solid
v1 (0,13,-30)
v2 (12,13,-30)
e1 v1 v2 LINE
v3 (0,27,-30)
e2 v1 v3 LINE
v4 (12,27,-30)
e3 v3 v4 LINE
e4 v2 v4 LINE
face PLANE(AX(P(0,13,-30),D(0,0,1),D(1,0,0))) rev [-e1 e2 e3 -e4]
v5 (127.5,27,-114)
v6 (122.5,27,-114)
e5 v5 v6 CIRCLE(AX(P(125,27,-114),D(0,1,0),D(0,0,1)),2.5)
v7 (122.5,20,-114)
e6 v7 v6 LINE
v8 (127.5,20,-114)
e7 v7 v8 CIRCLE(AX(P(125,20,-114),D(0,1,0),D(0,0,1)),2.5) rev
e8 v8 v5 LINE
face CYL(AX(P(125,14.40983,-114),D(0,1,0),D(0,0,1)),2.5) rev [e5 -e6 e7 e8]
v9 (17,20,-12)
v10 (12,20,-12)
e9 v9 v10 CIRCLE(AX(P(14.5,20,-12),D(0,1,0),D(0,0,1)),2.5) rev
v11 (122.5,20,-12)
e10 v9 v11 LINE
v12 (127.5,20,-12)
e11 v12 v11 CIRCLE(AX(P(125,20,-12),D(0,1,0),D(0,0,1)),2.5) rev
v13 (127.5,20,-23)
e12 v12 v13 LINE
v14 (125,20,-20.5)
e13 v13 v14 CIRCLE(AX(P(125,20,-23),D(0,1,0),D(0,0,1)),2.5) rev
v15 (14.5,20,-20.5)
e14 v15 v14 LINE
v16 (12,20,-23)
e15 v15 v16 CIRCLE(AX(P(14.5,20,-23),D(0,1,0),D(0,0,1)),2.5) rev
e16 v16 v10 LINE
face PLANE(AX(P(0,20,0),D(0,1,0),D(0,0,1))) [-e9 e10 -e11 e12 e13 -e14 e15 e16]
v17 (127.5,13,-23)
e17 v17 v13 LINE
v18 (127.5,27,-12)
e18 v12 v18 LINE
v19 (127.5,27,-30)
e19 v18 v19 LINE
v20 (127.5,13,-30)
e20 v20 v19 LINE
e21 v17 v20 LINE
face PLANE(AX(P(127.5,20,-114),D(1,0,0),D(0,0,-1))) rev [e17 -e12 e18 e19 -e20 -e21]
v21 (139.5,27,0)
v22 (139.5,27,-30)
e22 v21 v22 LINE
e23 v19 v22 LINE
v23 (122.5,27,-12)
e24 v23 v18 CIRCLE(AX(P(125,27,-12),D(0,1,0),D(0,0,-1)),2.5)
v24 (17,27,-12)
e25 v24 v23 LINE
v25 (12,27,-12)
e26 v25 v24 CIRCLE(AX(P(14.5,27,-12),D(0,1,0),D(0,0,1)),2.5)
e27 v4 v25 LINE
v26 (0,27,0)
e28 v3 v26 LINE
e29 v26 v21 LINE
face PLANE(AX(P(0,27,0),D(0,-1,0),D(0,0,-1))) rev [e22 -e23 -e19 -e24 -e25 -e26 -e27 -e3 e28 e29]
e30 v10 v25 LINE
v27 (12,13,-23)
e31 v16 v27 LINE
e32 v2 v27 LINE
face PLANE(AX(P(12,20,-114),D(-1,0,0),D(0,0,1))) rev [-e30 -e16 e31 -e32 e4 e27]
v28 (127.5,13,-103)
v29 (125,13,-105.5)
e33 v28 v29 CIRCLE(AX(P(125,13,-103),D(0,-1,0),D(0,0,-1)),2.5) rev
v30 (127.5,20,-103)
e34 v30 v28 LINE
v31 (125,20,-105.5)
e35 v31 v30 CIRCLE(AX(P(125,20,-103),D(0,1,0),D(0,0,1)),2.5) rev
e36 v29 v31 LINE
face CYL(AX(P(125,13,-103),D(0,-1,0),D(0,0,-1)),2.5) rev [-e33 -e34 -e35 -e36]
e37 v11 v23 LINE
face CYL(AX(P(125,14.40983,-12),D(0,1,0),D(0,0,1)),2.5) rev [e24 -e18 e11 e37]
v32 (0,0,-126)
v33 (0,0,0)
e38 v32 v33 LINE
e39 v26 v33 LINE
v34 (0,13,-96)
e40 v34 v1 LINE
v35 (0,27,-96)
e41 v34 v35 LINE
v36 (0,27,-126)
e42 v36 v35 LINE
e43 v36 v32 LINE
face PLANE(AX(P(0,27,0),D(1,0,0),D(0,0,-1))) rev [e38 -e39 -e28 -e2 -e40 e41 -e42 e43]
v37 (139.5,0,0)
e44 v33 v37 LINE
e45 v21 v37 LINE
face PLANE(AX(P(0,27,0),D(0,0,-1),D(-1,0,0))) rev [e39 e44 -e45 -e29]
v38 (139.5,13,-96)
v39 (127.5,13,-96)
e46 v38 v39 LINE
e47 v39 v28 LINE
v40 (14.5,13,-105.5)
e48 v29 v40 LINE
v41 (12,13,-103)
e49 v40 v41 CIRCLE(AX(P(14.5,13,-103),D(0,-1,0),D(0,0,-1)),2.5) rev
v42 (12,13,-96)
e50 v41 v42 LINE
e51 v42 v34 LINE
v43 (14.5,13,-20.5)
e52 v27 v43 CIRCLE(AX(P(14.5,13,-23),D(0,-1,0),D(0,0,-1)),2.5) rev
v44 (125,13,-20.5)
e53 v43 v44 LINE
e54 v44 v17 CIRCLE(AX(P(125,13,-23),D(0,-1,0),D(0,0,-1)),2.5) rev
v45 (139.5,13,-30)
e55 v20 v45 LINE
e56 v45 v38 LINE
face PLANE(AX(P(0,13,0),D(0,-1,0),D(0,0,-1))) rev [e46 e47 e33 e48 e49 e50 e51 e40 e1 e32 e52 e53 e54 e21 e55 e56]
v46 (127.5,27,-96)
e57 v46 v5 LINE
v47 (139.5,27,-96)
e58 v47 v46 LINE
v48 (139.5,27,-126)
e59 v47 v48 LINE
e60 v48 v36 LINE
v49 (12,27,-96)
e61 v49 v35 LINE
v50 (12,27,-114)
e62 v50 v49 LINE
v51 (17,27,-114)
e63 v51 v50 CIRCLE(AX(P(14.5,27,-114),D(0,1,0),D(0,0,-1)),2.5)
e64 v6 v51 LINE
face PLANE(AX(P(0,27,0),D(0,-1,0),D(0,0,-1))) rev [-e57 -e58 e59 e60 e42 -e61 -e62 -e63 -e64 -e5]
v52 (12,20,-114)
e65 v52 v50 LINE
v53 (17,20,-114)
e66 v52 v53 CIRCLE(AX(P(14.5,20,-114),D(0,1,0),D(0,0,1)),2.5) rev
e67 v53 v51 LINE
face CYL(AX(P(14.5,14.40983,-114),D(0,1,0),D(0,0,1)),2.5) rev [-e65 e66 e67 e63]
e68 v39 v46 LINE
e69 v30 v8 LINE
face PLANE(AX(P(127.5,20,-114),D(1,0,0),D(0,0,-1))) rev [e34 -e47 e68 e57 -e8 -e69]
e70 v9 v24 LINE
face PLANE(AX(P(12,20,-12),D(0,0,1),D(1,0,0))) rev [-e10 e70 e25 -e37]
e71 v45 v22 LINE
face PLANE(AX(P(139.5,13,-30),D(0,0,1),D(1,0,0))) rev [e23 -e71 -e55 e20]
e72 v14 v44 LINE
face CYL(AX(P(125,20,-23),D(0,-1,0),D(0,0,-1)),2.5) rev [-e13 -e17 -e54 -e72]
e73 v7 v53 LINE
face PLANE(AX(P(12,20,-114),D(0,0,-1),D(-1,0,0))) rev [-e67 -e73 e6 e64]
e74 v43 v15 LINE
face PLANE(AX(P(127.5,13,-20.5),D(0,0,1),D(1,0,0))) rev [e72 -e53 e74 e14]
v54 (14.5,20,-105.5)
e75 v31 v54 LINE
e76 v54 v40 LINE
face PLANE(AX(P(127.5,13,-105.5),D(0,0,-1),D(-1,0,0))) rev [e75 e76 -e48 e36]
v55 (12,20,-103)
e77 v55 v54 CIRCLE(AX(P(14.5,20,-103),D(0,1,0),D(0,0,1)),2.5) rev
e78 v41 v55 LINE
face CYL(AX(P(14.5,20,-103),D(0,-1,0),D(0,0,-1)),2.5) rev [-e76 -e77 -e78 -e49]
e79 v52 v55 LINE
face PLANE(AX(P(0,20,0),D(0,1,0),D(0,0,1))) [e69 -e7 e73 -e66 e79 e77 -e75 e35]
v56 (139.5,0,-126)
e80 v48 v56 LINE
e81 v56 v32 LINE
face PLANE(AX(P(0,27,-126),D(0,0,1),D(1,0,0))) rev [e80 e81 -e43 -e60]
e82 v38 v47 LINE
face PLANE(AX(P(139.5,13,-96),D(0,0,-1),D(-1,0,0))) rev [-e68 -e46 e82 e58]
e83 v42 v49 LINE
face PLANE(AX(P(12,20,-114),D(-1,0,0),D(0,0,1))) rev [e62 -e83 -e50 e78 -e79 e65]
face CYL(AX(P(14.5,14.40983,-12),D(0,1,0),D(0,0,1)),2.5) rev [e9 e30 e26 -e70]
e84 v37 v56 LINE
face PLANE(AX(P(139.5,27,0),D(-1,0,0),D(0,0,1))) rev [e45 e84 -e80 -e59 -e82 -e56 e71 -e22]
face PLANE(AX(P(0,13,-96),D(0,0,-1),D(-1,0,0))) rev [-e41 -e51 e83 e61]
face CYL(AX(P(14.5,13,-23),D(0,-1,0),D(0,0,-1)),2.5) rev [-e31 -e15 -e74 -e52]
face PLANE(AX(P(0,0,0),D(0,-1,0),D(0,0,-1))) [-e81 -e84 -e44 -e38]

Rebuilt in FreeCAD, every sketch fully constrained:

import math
import FreeCAD as App
import Part
import Sketcher

V = App.Vector
Q = App.Units.Quantity


def edges_at(feature, points):
    """Names of the edges that pass closest to the given points."""
    edges = feature.Shape.Edges
    near = lambda p: min(range(len(edges)), key=lambda i: edges[i].distToShape(Part.Vertex(*p))[0])
    return sorted({f"Edge{near(p) + 1}" for p in points})


def add_polygon(sketch, points):
    """Adds a closed chain of lines whose ends are joined by coincident constraints."""
    first, n = sketch.GeometryCount, len(points)
    for a, b in zip(points, points[1:] + points[:1]):
        sketch.addGeometry(Part.LineSegment(App.Vector(*a, 0), App.Vector(*b, 0)), False)
    for i in range(n):
        sketch.addConstraint(Sketcher.Constraint("Coincident", first + i, 2, first + (i + 1) % n, 1))

doc = App.newDocument("Part")
params = doc.addObject("Spreadsheet::Sheet", "Params")
for row, (alias, value) in enumerate([
    ("sketch1_height", "126 mm"),
    ("sketch1_width", "139.5 mm"),
    ("pad1_length", "27 mm"),
    ("sketch2_height", "102 mm"),
    ("sketch2_width", "115.5 mm"),
    ("pocket1_length", "7 mm"),
    ("sketch3_height", "85 mm"),
    ("sketch3_width", "115.5 mm"),
    ("pocket2_length", "7 mm"),
    ("sketch4_width", "12 mm"),
    ("sketch4_height", "66 mm"),
    ("pocket3_length", "14 mm"),
    ("sketch5_width", "12 mm"),
    ("sketch5_height", "66 mm"),
    ("pocket4_length", "14 mm"),
    ("sketch6_radius", "2.5 mm"),
    ("pocket5_length", "7 mm"),
    ("fillet_radius", "2.5 mm"),
], start=1):
    params.set(f"A{row}", alias)
    params.set(f"B{row}", "=" + value)
    params.setAlias(f"B{row}", alias)

body = doc.addObject("PartDesign::Body", "Body")

sketch1 = body.newObject("Sketcher::SketchObject", "Sketch")
sketch1.AttachmentSupport = (doc.getObject("XZ_Plane"), [""])
sketch1.MapMode = "FlatFace"
add_polygon(sketch1, [(0, -126), (0, 0), (139.5, 0), (139.5, -126)])
sketch1.addConstraint([
    Sketcher.Constraint("Vertical", 0),
    Sketcher.Constraint("Horizontal", 1),
    Sketcher.Constraint("Vertical", 2),
    Sketcher.Constraint("Horizontal", 3),
    Sketcher.Constraint("Coincident", 0, 2, -1, 1),
    Sketcher.Constraint("DistanceY", 0, 1, 0, 2, Q("126 mm")),
    Sketcher.Constraint("DistanceX", 1, 1, 1, 2, Q("139.5 mm")),
])
sketch1.setExpression("Constraints[9]", "Params.sketch1_height")
sketch1.setExpression("Constraints[10]", "Params.sketch1_width")
pad1 = body.newObject("PartDesign::Pad", "Pad")
pad1.Profile = sketch1
pad1.setExpression("Length", "Params.pad1_length")
pad1.Reversed = True

sketch2 = body.newObject("Sketcher::SketchObject", "Sketch001")
sketch2.AttachmentSupport = (doc.getObject("XZ_Plane"), [""])
sketch2.MapMode = "FlatFace"
sketch2.AttachmentOffset = App.Placement(V(0, 0, -27), App.Rotation())
add_polygon(sketch2, [(12, -114), (12, -12), (127.5, -12), (127.5, -114)])
sketch2.addConstraint([
    Sketcher.Constraint("Vertical", 0),
    Sketcher.Constraint("Horizontal", 1),
    Sketcher.Constraint("Vertical", 2),
    Sketcher.Constraint("Horizontal", 3),
    Sketcher.Constraint("DistanceY", 0, 1, 0, 2, Q("102 mm")),
    Sketcher.Constraint("DistanceX", 1, 1, 1, 2, Q("115.5 mm")),
    Sketcher.Constraint("DistanceX", -1, 1, 0, 2, Q("12 mm")),
    Sketcher.Constraint("DistanceY", 0, 2, -1, 1, Q("12 mm")),
])
sketch2.setExpression("Constraints[8]", "Params.sketch2_height")
sketch2.setExpression("Constraints[9]", "Params.sketch2_width")
pocket1 = body.newObject("PartDesign::Pocket", "Pocket")
pocket1.Profile = sketch2
pocket1.setExpression("Length", "Params.pocket1_length")
pocket1.Reversed = True

sketch3 = body.newObject("Sketcher::SketchObject", "Sketch002")
sketch3.AttachmentSupport = (doc.getObject("XZ_Plane"), [""])
sketch3.MapMode = "FlatFace"
sketch3.AttachmentOffset = App.Placement(V(0, 0, -20), App.Rotation())
add_polygon(sketch3, [(12, -105.5), (12, -20.5), (127.5, -20.5), (127.5, -105.5)])
sketch3.addConstraint([
    Sketcher.Constraint("Vertical", 0),
    Sketcher.Constraint("Horizontal", 1),
    Sketcher.Constraint("Vertical", 2),
    Sketcher.Constraint("Horizontal", 3),
    Sketcher.Constraint("DistanceY", 0, 1, 0, 2, Q("85 mm")),
    Sketcher.Constraint("DistanceX", 1, 1, 1, 2, Q("115.5 mm")),
    Sketcher.Constraint("DistanceX", -1, 1, 0, 2, Q("12 mm")),
    Sketcher.Constraint("DistanceY", 0, 2, -1, 1, Q("20.5 mm")),
])
sketch3.setExpression("Constraints[8]", "Params.sketch3_height")
sketch3.setExpression("Constraints[9]", "Params.sketch3_width")
pocket2 = body.newObject("PartDesign::Pocket", "Pocket001")
pocket2.Profile = sketch3
pocket2.setExpression("Length", "Params.pocket2_length")
pocket2.Reversed = True

sketch4 = body.newObject("Sketcher::SketchObject", "Sketch003")
sketch4.AttachmentSupport = (doc.getObject("XZ_Plane"), [""])
sketch4.MapMode = "FlatFace"
sketch4.AttachmentOffset = App.Placement(V(0, 0, -27), App.Rotation())
add_polygon(sketch4, [(0, -96), (0, -30), (12, -30), (12, -96)])
sketch4.addConstraint([
    Sketcher.Constraint("Vertical", 0),
    Sketcher.Constraint("Horizontal", 1),
    Sketcher.Constraint("Vertical", 2),
    Sketcher.Constraint("Horizontal", 3),
    Sketcher.Constraint("PointOnObject", 0, 2, -2),
    Sketcher.Constraint("DistanceX", 1, 1, 1, 2, Q("12 mm")),
    Sketcher.Constraint("DistanceY", 0, 1, 0, 2, Q("66 mm")),
    Sketcher.Constraint("DistanceY", 0, 2, -1, 1, Q("30 mm")),
])
sketch4.setExpression("Constraints[9]", "Params.sketch4_width")
sketch4.setExpression("Constraints[10]", "Params.sketch4_height")
pocket3 = body.newObject("PartDesign::Pocket", "Pocket002")
pocket3.Profile = sketch4
pocket3.setExpression("Length", "Params.pocket3_length")
pocket3.Reversed = True

sketch5 = body.newObject("Sketcher::SketchObject", "Sketch004")
sketch5.AttachmentSupport = (doc.getObject("XZ_Plane"), [""])
sketch5.MapMode = "FlatFace"
sketch5.AttachmentOffset = App.Placement(V(0, 0, -27), App.Rotation())
add_polygon(sketch5, [(127.5, -96), (127.5, -30), (139.5, -30), (139.5, -96)])
sketch5.addConstraint([
    Sketcher.Constraint("Vertical", 0),
    Sketcher.Constraint("Horizontal", 1),
    Sketcher.Constraint("Vertical", 2),
    Sketcher.Constraint("Horizontal", 3),
    Sketcher.Constraint("DistanceX", 1, 1, 1, 2, Q("12 mm")),
    Sketcher.Constraint("DistanceY", 0, 1, 0, 2, Q("66 mm")),
    Sketcher.Constraint("DistanceY", 0, 2, -1, 1, Q("30 mm")),
    Sketcher.Constraint("DistanceX", -1, 1, 0, 2, Q("127.5 mm")),
])
sketch5.setExpression("Constraints[8]", "Params.sketch5_width")
sketch5.setExpression("Constraints[9]", "Params.sketch5_height")
pocket4 = body.newObject("PartDesign::Pocket", "Pocket003")
pocket4.Profile = sketch5
pocket4.setExpression("Length", "Params.pocket4_length")
pocket4.Reversed = True

sketch6 = body.newObject("Sketcher::SketchObject", "Sketch005")
sketch6.AttachmentSupport = (doc.getObject("XZ_Plane"), [""])
sketch6.MapMode = "FlatFace"
sketch6.AttachmentOffset = App.Placement(V(0, 0, -27), App.Rotation())
sketch6.addGeometry([
    Part.LineSegment(V(17, -12, 0), V(12, -12, 0)),
    Part.ArcOfCircle(Part.Circle(V(14.5, -12, 0), V(0, 0, 1), 2.5), math.radians(0), math.radians(180)),
    Part.LineSegment(V(127.5, -12, 0), V(122.5, -12, 0)),
    Part.ArcOfCircle(Part.Circle(V(125, -12, 0), V(0, 0, 1), 2.5), math.radians(0), math.radians(180)),
    Part.LineSegment(V(12, -114, 0), V(17, -114, 0)),
    Part.ArcOfCircle(Part.Circle(V(14.5, -114, 0), V(0, 0, 1), 2.5), math.radians(180), math.radians(360)),
    Part.LineSegment(V(122.5, -114, 0), V(127.5, -114, 0)),
    Part.ArcOfCircle(Part.Circle(V(125, -114, 0), V(0, 0, 1), 2.5), math.radians(180), math.radians(360)),
], False)
sketch6.addConstraint([
    Sketcher.Constraint("Coincident", 0, 1, 1, 1),
    Sketcher.Constraint("Coincident", 1, 2, 0, 2),
    Sketcher.Constraint("Coincident", 2, 1, 3, 1),
    Sketcher.Constraint("Coincident", 3, 2, 2, 2),
    Sketcher.Constraint("Coincident", 4, 1, 5, 1),
    Sketcher.Constraint("Coincident", 5, 2, 4, 2),
    Sketcher.Constraint("Coincident", 6, 1, 7, 1),
    Sketcher.Constraint("Coincident", 7, 2, 6, 2),
    Sketcher.Constraint("Horizontal", 0),
    Sketcher.Constraint("Horizontal", 2),
    Sketcher.Constraint("Horizontal", 4),
    Sketcher.Constraint("Horizontal", 6),
    Sketcher.Constraint("Equal", 1, 3),
    Sketcher.Constraint("Equal", 3, 5),
    Sketcher.Constraint("Equal", 5, 7),
    Sketcher.Constraint("Horizontal", 1, 3, 3, 3),
    Sketcher.Constraint("Horizontal", 5, 3, 7, 3),
    Sketcher.Constraint("Horizontal", 3, 3, 0, 1),
    Sketcher.Constraint("Horizontal", 1, 2, 2, 1),
    Sketcher.Constraint("Horizontal", 7, 3, 4, 1),
    Sketcher.Constraint("Horizontal", 5, 2, 6, 1),
    Sketcher.Constraint("Vertical", 1, 3, 5, 3),
    Sketcher.Constraint("Vertical", 3, 3, 7, 3),
    Sketcher.Constraint("Radius", 1, Q("2.5 mm")),
    Sketcher.Constraint("DistanceY", 1, 3, -1, 1, Q("12 mm")),
    Sketcher.Constraint("DistanceX", -1, 1, 3, 3, Q("125 mm")),
    Sketcher.Constraint("DistanceY", 5, 3, -1, 1, Q("114 mm")),
    Sketcher.Constraint("DistanceX", -1, 1, 0, 1, Q("17 mm")),
])
sketch6.setExpression("Constraints[23]", "Params.sketch6_radius")
pocket5 = body.newObject("PartDesign::Pocket", "Pocket004")
pocket5.Profile = sketch6
pocket5.setExpression("Length", "Params.pocket5_length")
pocket5.Reversed = True
doc.recompute()

fillet = body.newObject("PartDesign::Fillet", "Fillet")
fillet.Base = (pocket5, edges_at(pocket5, [
    (127.5, 16.5, -105.5),
    (127.5, 16.5, -20.5),
    (12, 16.5, -20.5),
    (12, 16.5, -105.5),
]))
fillet.setExpression("Radius", "Params.fillet_radius")

doc.recompute()
